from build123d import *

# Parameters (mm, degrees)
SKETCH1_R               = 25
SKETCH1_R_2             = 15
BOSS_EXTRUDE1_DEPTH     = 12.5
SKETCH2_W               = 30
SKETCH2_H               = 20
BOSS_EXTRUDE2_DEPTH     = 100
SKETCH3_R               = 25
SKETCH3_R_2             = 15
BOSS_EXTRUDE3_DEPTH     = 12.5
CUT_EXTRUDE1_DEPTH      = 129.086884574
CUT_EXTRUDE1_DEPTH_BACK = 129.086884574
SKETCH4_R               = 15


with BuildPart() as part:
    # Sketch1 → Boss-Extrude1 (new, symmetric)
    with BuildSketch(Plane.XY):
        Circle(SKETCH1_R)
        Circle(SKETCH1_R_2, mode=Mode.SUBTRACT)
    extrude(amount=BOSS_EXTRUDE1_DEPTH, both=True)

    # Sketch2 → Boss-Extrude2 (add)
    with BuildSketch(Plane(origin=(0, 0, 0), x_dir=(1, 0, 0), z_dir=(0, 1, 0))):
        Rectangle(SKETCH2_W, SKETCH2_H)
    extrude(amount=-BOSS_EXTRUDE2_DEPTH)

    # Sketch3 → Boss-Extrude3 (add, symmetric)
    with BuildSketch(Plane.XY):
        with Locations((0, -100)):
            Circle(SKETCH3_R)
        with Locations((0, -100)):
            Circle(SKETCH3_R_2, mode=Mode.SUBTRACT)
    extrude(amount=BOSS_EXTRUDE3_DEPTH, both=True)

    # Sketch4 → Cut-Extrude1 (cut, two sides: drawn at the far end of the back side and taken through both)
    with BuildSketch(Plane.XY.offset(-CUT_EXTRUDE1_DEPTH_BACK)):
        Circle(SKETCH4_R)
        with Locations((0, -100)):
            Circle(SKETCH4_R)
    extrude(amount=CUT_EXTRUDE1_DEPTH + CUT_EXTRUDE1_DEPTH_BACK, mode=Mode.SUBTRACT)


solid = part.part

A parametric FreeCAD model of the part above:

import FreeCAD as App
import Part
import Sketcher
from FreeCAD import Vector


def add_polygon(sketch, points):
    """Adds a closed chain of lines whose ends are joined by coincident constraints."""
    first, n = sketch.GeometryCount, len(points)
    for a, b in zip(points, points[1:] + points[:1]):
        sketch.addGeometry(Part.LineSegment(App.Vector(*a, 0), App.Vector(*b, 0)), False)
    for i in range(n):
        sketch.addConstraint(Sketcher.Constraint("Coincident", first + i, 2, first + (i + 1) % n, 1))

doc = App.newDocument("Part")
body = doc.addObject("PartDesign::Body", "Body")

# Sketch on XY plane
sketch1 = body.newObject("Sketcher::SketchObject", "Sketch")
sketch1.AttachmentSupport = (doc.getObject("XY_Plane"), [""])
sketch1.MapMode = "FlatFace"
sketch1.addGeometry(Part.Circle(Vector(0, 0, 0), Vector(0, 0, 1), 25), False)
sketch1.addGeometry(Part.Circle(Vector(0, 0, 0), Vector(0, 0, 1), 15), False)
sketch1.addConstraint(Sketcher.Constraint("Coincident", 0, 3, -1, 1))
sketch1.addConstraint(Sketcher.Constraint("Coincident", 1, 3, -1, 1))
sketch1.addConstraint(Sketcher.Constraint("Diameter", 0, 50.0))
sketch1.addConstraint(Sketcher.Constraint("Diameter", 1, 30.0))
pad1 = body.newObject("PartDesign::Pad", "Pad")
pad1.Profile = sketch1
pad1.Length = 25
pad1.Midplane = True

# Sketch on XZ plane
sketch2 = body.newObject("Sketcher::SketchObject", "Sketch001")
sketch2.AttachmentSupport = (doc.getObject("XZ_Plane"), [""])
sketch2.MapMode = "FlatFace"
add_polygon(sketch2, [(-15, -10), (-15, 10), (15, 10), (15, -10)])  # lines 0-3
sketch2.addConstraint(Sketcher.Constraint("Vertical", 0))
sketch2.addConstraint(Sketcher.Constraint("Horizontal", 1))
sketch2.addConstraint(Sketcher.Constraint("Vertical", 2))
sketch2.addConstraint(Sketcher.Constraint("Horizontal", 3))
sketch2.addConstraint(Sketcher.Constraint("Symmetric", 0, 2, 2, 2, -1, 1))
sketch2.addConstraint(Sketcher.Constraint("DistanceX", 1, 1, 1, 2, 30.0))
sketch2.addConstraint(Sketcher.Constraint("DistanceY", 0, 1, 0, 2, 20.0))
pad2 = body.newObject("PartDesign::Pad", "Pad001")
pad2.Profile = sketch2
pad2.Length = 100

# Sketch on XY plane
sketch3 = body.newObject("Sketcher::SketchObject", "Sketch002")
sketch3.AttachmentSupport = (doc.getObject("XY_Plane"), [""])
sketch3.MapMode = "FlatFace"
sketch3.addGeometry(Part.Circle(Vector(0, -100, 0), Vector(0, 0, 1), 25), False)
sketch3.addGeometry(Part.Circle(Vector(0, -100, 0), Vector(0, 0, 1), 15), False)
sketch3.addConstraint(Sketcher.Constraint("Coincident", 1, 3, 0, 3))
sketch3.addConstraint(Sketcher.Constraint("PointOnObject", 0, 3, -2))
sketch3.addConstraint(Sketcher.Constraint("Diameter", 0, 50.0))
sketch3.addConstraint(Sketcher.Constraint("Diameter", 1, 30.0))
sketch3.addConstraint(Sketcher.Constraint("DistanceY", 0, 3, -1, 1, 100.0))
pad3 = body.newObject("PartDesign::Pad", "Pad002")
pad3.Profile = sketch3
pad3.Length = 25
pad3.Midplane = True

# Sketch on XY plane
sketch4 = body.newObject("Sketcher::SketchObject", "Sketch003")
sketch4.AttachmentSupport = (doc.getObject("XY_Plane"), [""])
sketch4.MapMode = "FlatFace"
sketch4.addGeometry(Part.Circle(Vector(0, 0, 0), Vector(0, 0, 1), 15), False)
sketch4.addGeometry(Part.Circle(Vector(0, -100, 0), Vector(0, 0, 1), 15), False)
sketch4.addConstraint(Sketcher.Constraint("Coincident", 0, 3, -1, 1))
sketch4.addConstraint(Sketcher.Constraint("Equal", 0, 1))
sketch4.addConstraint(Sketcher.Constraint("PointOnObject", 1, 3, -2))
sketch4.addConstraint(Sketcher.Constraint("Diameter", 0, 30.0))
sketch4.addConstraint(Sketcher.Constraint("DistanceY", 1, 3, -1, 1, 100.0))
pocket1 = body.newObject("PartDesign::Pocket", "Pocket")
pocket1.Profile = sketch4
pocket1.Type = "ThroughAll"
pocket1.Midplane = True

doc.recompute()
